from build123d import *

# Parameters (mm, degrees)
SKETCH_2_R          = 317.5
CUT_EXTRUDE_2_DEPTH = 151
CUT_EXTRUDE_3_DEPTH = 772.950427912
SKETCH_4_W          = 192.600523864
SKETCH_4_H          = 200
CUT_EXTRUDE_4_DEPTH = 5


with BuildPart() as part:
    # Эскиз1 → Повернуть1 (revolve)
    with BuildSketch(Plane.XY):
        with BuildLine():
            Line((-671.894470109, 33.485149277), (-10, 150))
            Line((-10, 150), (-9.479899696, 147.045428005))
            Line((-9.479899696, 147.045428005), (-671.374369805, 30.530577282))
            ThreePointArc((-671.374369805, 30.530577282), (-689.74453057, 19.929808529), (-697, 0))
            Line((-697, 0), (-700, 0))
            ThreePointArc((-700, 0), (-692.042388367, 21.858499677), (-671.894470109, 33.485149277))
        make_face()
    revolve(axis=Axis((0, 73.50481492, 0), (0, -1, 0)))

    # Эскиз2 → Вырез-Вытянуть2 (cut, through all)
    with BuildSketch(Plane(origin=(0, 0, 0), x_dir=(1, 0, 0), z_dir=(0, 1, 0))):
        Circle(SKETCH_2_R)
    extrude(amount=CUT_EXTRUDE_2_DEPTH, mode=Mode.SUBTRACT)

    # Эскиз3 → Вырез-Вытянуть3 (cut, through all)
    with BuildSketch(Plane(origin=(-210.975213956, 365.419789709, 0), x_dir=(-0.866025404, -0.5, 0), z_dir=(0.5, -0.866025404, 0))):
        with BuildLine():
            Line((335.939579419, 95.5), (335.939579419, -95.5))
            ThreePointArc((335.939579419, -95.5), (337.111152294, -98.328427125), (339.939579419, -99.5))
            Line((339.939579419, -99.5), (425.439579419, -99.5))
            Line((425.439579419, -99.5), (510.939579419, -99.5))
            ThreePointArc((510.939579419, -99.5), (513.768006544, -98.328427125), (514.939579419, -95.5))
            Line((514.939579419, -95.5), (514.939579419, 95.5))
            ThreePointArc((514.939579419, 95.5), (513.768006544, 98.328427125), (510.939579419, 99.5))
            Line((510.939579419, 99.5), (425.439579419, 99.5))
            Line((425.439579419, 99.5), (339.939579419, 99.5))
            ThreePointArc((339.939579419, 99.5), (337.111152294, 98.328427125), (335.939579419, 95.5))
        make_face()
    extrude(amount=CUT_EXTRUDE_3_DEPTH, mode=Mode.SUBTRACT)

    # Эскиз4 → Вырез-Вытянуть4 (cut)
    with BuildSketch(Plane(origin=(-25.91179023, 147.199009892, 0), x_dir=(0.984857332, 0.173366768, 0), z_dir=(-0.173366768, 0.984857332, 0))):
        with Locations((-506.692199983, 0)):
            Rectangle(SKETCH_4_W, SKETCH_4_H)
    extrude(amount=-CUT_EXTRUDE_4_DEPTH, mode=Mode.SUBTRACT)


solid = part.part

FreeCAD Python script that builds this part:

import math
import FreeCAD as App
import Part
import Sketcher
Q = App.Units.Quantity

doc = App.newDocument("Part")
body = doc.addObject("PartDesign::Body", "Body")

# Sketch on XY plane
sketch1 = doc.addObject("Sketcher::SketchObject", "Sketch")
body.addObject(sketch1)
sketch1.AttachmentSupport = (doc.XY_Plane, [""])
sketch1.MapMode = "FlatFace"
sketch1.addGeometry([
    Part.LineSegment(App.Vector(-10, 150, 0), App.Vector(-671.9, 33.5, 0)),  # 0
    Part.ArcOfCircle(Part.Circle(App.Vector(-666, 0, 0), App.Vector(0, 0, 1), 34), math.radians(100), math.radians(180)),  # 1
    Part.LineSegment(App.Vector(-700, 0, 0), App.Vector(-697, 0, 0)),  # 2
    Part.ArcOfCircle(Part.Circle(App.Vector(-666, 0, 0), App.Vector(0, 0, 1), 31), math.radians(100), math.radians(180)),  # 3
    Part.LineSegment(App.Vector(-671.4, 30.5, 0), App.Vector(-9.5, 147, 0)),  # 4
    Part.LineSegment(App.Vector(-9.5, 147, 0), App.Vector(-10, 150, 0)),  # 5
], False)
sketch1.addConstraint([
    Sketcher.Constraint("Tangent", 0, 2, 1, 1),
    Sketcher.Constraint("Coincident", 1, 2, 2, 1),
    Sketcher.Constraint("Coincident", 2, 2, 3, 2),
    Sketcher.Constraint("Tangent", 3, 1, 4, 1),
    Sketcher.Constraint("Coincident", 4, 2, 5, 1),
    Sketcher.Constraint("Coincident", 5, 2, 0, 1),
    Sketcher.Constraint("Horizontal", 2),
    Sketcher.Constraint("Coincident", 3, 3, 1, 3),
    Sketcher.Constraint("PointOnObject", 1, 3, -1),
    Sketcher.Constraint("PointOnObject", 1, 2, -1),
    Sketcher.Constraint("Parallel", 0, 4),
    Sketcher.Constraint("Perpendicular", 4, 5),
    Sketcher.Constraint("Radius", 1, Q("34 mm")),
    Sketcher.Constraint("Radius", 3, Q("31 mm")),
    Sketcher.Constraint("DistanceX", 1, 3, -1, 1, Q("666 mm")),
    Sketcher.Constraint("DistanceX", 5, 2, -1, 1, Q("10 mm")),
    Sketcher.Constraint("DistanceY", -1, 1, 5, 2, Q("150 mm")),
])
revolution = doc.addObject("PartDesign::Revolution", "Revolution")
body.addObject(revolution)
revolution.Profile = sketch1
revolution.ReferenceAxis = (sketch1, ["V_Axis"])
revolution.Angle = 360

# Sketch on XZ plane
sketch2 = doc.addObject("Sketcher::SketchObject", "Sketch001")
body.addObject(sketch2)
sketch2.AttachmentSupport = (doc.XZ_Plane, [""])
sketch2.MapMode = "FlatFace"
sketch2.addGeometry(Part.Circle(App.Vector(0, 0, 0), App.Vector(0, 0, 1), 318), False)
sketch2.addConstraint([
    Sketcher.Constraint("Coincident", 0, 3, -1, 1),
    Sketcher.Constraint("Diameter", 0, Q("635 mm")),
])
pocket1 = doc.addObject("PartDesign::Pocket", "Pocket")
body.addObject(pocket1)
pocket1.Profile = sketch2
pocket1.Type = "ThroughAll"

# Sketch on an angled plane
sketch3 = doc.addObject("Sketcher::SketchObject", "Sketch002")
body.addObject(sketch3)
sketch3.Placement = App.Placement(App.Vector(-210.975214, 365.41979, 0), App.Rotation(App.Vector(-0.866025404, -0.5, 0), App.Vector(0, 0, -1), App.Vector(0.5, -0.866025404, 0), "ZXY"))
sketch3.addGeometry([
    Part.LineSegment(App.Vector(335.9, 95.5, 0), App.Vector(335.9, -95.5, 0)),  # 0
    Part.ArcOfCircle(Part.Circle(App.Vector(339.9, -95.5, 0), App.Vector(0, 0, 1), 4), math.radians(180), math.radians(270)),  # 1
    Part.LineSegment(App.Vector(339.9, -99.5, 0), App.Vector(510.9, -99.5, 0)),  # 2
    Part.ArcOfCircle(Part.Circle(App.Vector(510.9, -95.5, 0), App.Vector(0, 0, 1), 4), math.radians(-90), math.radians(0)),  # 3
    Part.LineSegment(App.Vector(514.9, -95.5, 0), App.Vector(514.9, 95.5, 0)),  # 4
    Part.ArcOfCircle(Part.Circle(App.Vector(510.9, 95.5, 0), App.Vector(0, 0, 1), 4), math.radians(0), math.radians(90)),  # 5
    Part.LineSegment(App.Vector(510.9, 99.5, 0), App.Vector(339.9, 99.5, 0)),  # 6
    Part.ArcOfCircle(Part.Circle(App.Vector(339.9, 95.5, 0), App.Vector(0, 0, 1), 4), math.radians(90), math.radians(180)),  # 7
], False)
sketch3.addConstraint([
    Sketcher.Constraint("Tangent", 0, 2, 1, 1),
    Sketcher.Constraint("Tangent", 1, 2, 2, 1),
    Sketcher.Constraint("Tangent", 2, 2, 3, 1),
    Sketcher.Constraint("Tangent", 3, 2, 4, 1),
    Sketcher.Constraint("Tangent", 4, 2, 5, 1),
    Sketcher.Constraint("Tangent", 5, 2, 6, 1),
    Sketcher.Constraint("Tangent", 6, 2, 7, 1),
    Sketcher.Constraint("Tangent", 7, 2, 0, 1),
    Sketcher.Constraint("Vertical", 0),
    Sketcher.Constraint("Horizontal", 2),
    Sketcher.Constraint("Vertical", 4),
    Sketcher.Constraint("Horizontal", 6),
    Sketcher.Constraint("Equal", 1, 3),
    Sketcher.Constraint("Equal", 3, 5),
    Sketcher.Constraint("Equal", 5, 7),
    Sketcher.Constraint("Radius", 1, Q("4 mm")),
    Sketcher.Constraint("DistanceX", 2, 1, 2, 2, Q("171 mm")),
    Sketcher.Constraint("DistanceY", 0, 2, 0, 1, Q("191 mm")),
    Sketcher.Constraint("DistanceY", 1, 3, -1, 1, Q("95.5 mm")),
    Sketcher.Constraint("DistanceX", -1, 1, 1, 3, Q("339.93958 mm")),
])
pocket2 = doc.addObject("PartDesign::Pocket", "Pocket001")
body.addObject(pocket2)
pocket2.Profile = sketch3
pocket2.Type = "ThroughAll"
pocket2.Reversed = True

# Sketch on an angled plane
sketch4 = doc.addObject("Sketcher::SketchObject", "Sketch003")
body.addObject(sketch4)
sketch4.Placement = App.Placement(App.Vector(-25.91179, 147.19901, 0), App.Rotation(App.Vector(0.984857332, 0.173366768, 0), App.Vector(0, 0, -1.000000001), App.Vector(-0.173366768, 0.984857332, 0), "ZXY"))
sketch4.addGeometry([
    Part.LineSegment(App.Vector(-603, 100, 0), App.Vector(-603, -100, 0)),
    Part.LineSegment(App.Vector(-603, -100, 0), App.Vector(-410, -100, 0)),
    Part.LineSegment(App.Vector(-410, -100, 0), App.Vector(-410, 100, 0)),
    Part.LineSegment(App.Vector(-410, 100, 0), App.Vector(-603, 100, 0)),
], False)
sketch4.addConstraint([
    Sketcher.Constraint("Coincident", 0, 2, 1, 1),
    Sketcher.Constraint("Coincident", 1, 2, 2, 1),
    Sketcher.Constraint("Coincident", 2, 2, 3, 1),
    Sketcher.Constraint("Coincident", 3, 2, 0, 1),
    Sketcher.Constraint("Vertical", 0),
    Sketcher.Constraint("Horizontal", 1),
    Sketcher.Constraint("Vertical", 2),
    Sketcher.Constraint("Horizontal", 3),
    Sketcher.Constraint("DistanceY", 0, 2, 0, 1, Q("200 mm")),
    Sketcher.Constraint("DistanceY", 0, 2, -1, 1, Q("100 mm")),
    Sketcher.Constraint("DistanceX", 1, 1, 1, 2, Q("192.600524 mm")),
    Sketcher.Constraint("DistanceX", 1, 2, -1, 1, Q("410.391938 mm")),
])
pocket3 = doc.addObject("PartDesign::Pocket", "Pocket002")
body.addObject(pocket3)
pocket3.Profile = sketch4
pocket3.Length = 5

doc.recompute()
